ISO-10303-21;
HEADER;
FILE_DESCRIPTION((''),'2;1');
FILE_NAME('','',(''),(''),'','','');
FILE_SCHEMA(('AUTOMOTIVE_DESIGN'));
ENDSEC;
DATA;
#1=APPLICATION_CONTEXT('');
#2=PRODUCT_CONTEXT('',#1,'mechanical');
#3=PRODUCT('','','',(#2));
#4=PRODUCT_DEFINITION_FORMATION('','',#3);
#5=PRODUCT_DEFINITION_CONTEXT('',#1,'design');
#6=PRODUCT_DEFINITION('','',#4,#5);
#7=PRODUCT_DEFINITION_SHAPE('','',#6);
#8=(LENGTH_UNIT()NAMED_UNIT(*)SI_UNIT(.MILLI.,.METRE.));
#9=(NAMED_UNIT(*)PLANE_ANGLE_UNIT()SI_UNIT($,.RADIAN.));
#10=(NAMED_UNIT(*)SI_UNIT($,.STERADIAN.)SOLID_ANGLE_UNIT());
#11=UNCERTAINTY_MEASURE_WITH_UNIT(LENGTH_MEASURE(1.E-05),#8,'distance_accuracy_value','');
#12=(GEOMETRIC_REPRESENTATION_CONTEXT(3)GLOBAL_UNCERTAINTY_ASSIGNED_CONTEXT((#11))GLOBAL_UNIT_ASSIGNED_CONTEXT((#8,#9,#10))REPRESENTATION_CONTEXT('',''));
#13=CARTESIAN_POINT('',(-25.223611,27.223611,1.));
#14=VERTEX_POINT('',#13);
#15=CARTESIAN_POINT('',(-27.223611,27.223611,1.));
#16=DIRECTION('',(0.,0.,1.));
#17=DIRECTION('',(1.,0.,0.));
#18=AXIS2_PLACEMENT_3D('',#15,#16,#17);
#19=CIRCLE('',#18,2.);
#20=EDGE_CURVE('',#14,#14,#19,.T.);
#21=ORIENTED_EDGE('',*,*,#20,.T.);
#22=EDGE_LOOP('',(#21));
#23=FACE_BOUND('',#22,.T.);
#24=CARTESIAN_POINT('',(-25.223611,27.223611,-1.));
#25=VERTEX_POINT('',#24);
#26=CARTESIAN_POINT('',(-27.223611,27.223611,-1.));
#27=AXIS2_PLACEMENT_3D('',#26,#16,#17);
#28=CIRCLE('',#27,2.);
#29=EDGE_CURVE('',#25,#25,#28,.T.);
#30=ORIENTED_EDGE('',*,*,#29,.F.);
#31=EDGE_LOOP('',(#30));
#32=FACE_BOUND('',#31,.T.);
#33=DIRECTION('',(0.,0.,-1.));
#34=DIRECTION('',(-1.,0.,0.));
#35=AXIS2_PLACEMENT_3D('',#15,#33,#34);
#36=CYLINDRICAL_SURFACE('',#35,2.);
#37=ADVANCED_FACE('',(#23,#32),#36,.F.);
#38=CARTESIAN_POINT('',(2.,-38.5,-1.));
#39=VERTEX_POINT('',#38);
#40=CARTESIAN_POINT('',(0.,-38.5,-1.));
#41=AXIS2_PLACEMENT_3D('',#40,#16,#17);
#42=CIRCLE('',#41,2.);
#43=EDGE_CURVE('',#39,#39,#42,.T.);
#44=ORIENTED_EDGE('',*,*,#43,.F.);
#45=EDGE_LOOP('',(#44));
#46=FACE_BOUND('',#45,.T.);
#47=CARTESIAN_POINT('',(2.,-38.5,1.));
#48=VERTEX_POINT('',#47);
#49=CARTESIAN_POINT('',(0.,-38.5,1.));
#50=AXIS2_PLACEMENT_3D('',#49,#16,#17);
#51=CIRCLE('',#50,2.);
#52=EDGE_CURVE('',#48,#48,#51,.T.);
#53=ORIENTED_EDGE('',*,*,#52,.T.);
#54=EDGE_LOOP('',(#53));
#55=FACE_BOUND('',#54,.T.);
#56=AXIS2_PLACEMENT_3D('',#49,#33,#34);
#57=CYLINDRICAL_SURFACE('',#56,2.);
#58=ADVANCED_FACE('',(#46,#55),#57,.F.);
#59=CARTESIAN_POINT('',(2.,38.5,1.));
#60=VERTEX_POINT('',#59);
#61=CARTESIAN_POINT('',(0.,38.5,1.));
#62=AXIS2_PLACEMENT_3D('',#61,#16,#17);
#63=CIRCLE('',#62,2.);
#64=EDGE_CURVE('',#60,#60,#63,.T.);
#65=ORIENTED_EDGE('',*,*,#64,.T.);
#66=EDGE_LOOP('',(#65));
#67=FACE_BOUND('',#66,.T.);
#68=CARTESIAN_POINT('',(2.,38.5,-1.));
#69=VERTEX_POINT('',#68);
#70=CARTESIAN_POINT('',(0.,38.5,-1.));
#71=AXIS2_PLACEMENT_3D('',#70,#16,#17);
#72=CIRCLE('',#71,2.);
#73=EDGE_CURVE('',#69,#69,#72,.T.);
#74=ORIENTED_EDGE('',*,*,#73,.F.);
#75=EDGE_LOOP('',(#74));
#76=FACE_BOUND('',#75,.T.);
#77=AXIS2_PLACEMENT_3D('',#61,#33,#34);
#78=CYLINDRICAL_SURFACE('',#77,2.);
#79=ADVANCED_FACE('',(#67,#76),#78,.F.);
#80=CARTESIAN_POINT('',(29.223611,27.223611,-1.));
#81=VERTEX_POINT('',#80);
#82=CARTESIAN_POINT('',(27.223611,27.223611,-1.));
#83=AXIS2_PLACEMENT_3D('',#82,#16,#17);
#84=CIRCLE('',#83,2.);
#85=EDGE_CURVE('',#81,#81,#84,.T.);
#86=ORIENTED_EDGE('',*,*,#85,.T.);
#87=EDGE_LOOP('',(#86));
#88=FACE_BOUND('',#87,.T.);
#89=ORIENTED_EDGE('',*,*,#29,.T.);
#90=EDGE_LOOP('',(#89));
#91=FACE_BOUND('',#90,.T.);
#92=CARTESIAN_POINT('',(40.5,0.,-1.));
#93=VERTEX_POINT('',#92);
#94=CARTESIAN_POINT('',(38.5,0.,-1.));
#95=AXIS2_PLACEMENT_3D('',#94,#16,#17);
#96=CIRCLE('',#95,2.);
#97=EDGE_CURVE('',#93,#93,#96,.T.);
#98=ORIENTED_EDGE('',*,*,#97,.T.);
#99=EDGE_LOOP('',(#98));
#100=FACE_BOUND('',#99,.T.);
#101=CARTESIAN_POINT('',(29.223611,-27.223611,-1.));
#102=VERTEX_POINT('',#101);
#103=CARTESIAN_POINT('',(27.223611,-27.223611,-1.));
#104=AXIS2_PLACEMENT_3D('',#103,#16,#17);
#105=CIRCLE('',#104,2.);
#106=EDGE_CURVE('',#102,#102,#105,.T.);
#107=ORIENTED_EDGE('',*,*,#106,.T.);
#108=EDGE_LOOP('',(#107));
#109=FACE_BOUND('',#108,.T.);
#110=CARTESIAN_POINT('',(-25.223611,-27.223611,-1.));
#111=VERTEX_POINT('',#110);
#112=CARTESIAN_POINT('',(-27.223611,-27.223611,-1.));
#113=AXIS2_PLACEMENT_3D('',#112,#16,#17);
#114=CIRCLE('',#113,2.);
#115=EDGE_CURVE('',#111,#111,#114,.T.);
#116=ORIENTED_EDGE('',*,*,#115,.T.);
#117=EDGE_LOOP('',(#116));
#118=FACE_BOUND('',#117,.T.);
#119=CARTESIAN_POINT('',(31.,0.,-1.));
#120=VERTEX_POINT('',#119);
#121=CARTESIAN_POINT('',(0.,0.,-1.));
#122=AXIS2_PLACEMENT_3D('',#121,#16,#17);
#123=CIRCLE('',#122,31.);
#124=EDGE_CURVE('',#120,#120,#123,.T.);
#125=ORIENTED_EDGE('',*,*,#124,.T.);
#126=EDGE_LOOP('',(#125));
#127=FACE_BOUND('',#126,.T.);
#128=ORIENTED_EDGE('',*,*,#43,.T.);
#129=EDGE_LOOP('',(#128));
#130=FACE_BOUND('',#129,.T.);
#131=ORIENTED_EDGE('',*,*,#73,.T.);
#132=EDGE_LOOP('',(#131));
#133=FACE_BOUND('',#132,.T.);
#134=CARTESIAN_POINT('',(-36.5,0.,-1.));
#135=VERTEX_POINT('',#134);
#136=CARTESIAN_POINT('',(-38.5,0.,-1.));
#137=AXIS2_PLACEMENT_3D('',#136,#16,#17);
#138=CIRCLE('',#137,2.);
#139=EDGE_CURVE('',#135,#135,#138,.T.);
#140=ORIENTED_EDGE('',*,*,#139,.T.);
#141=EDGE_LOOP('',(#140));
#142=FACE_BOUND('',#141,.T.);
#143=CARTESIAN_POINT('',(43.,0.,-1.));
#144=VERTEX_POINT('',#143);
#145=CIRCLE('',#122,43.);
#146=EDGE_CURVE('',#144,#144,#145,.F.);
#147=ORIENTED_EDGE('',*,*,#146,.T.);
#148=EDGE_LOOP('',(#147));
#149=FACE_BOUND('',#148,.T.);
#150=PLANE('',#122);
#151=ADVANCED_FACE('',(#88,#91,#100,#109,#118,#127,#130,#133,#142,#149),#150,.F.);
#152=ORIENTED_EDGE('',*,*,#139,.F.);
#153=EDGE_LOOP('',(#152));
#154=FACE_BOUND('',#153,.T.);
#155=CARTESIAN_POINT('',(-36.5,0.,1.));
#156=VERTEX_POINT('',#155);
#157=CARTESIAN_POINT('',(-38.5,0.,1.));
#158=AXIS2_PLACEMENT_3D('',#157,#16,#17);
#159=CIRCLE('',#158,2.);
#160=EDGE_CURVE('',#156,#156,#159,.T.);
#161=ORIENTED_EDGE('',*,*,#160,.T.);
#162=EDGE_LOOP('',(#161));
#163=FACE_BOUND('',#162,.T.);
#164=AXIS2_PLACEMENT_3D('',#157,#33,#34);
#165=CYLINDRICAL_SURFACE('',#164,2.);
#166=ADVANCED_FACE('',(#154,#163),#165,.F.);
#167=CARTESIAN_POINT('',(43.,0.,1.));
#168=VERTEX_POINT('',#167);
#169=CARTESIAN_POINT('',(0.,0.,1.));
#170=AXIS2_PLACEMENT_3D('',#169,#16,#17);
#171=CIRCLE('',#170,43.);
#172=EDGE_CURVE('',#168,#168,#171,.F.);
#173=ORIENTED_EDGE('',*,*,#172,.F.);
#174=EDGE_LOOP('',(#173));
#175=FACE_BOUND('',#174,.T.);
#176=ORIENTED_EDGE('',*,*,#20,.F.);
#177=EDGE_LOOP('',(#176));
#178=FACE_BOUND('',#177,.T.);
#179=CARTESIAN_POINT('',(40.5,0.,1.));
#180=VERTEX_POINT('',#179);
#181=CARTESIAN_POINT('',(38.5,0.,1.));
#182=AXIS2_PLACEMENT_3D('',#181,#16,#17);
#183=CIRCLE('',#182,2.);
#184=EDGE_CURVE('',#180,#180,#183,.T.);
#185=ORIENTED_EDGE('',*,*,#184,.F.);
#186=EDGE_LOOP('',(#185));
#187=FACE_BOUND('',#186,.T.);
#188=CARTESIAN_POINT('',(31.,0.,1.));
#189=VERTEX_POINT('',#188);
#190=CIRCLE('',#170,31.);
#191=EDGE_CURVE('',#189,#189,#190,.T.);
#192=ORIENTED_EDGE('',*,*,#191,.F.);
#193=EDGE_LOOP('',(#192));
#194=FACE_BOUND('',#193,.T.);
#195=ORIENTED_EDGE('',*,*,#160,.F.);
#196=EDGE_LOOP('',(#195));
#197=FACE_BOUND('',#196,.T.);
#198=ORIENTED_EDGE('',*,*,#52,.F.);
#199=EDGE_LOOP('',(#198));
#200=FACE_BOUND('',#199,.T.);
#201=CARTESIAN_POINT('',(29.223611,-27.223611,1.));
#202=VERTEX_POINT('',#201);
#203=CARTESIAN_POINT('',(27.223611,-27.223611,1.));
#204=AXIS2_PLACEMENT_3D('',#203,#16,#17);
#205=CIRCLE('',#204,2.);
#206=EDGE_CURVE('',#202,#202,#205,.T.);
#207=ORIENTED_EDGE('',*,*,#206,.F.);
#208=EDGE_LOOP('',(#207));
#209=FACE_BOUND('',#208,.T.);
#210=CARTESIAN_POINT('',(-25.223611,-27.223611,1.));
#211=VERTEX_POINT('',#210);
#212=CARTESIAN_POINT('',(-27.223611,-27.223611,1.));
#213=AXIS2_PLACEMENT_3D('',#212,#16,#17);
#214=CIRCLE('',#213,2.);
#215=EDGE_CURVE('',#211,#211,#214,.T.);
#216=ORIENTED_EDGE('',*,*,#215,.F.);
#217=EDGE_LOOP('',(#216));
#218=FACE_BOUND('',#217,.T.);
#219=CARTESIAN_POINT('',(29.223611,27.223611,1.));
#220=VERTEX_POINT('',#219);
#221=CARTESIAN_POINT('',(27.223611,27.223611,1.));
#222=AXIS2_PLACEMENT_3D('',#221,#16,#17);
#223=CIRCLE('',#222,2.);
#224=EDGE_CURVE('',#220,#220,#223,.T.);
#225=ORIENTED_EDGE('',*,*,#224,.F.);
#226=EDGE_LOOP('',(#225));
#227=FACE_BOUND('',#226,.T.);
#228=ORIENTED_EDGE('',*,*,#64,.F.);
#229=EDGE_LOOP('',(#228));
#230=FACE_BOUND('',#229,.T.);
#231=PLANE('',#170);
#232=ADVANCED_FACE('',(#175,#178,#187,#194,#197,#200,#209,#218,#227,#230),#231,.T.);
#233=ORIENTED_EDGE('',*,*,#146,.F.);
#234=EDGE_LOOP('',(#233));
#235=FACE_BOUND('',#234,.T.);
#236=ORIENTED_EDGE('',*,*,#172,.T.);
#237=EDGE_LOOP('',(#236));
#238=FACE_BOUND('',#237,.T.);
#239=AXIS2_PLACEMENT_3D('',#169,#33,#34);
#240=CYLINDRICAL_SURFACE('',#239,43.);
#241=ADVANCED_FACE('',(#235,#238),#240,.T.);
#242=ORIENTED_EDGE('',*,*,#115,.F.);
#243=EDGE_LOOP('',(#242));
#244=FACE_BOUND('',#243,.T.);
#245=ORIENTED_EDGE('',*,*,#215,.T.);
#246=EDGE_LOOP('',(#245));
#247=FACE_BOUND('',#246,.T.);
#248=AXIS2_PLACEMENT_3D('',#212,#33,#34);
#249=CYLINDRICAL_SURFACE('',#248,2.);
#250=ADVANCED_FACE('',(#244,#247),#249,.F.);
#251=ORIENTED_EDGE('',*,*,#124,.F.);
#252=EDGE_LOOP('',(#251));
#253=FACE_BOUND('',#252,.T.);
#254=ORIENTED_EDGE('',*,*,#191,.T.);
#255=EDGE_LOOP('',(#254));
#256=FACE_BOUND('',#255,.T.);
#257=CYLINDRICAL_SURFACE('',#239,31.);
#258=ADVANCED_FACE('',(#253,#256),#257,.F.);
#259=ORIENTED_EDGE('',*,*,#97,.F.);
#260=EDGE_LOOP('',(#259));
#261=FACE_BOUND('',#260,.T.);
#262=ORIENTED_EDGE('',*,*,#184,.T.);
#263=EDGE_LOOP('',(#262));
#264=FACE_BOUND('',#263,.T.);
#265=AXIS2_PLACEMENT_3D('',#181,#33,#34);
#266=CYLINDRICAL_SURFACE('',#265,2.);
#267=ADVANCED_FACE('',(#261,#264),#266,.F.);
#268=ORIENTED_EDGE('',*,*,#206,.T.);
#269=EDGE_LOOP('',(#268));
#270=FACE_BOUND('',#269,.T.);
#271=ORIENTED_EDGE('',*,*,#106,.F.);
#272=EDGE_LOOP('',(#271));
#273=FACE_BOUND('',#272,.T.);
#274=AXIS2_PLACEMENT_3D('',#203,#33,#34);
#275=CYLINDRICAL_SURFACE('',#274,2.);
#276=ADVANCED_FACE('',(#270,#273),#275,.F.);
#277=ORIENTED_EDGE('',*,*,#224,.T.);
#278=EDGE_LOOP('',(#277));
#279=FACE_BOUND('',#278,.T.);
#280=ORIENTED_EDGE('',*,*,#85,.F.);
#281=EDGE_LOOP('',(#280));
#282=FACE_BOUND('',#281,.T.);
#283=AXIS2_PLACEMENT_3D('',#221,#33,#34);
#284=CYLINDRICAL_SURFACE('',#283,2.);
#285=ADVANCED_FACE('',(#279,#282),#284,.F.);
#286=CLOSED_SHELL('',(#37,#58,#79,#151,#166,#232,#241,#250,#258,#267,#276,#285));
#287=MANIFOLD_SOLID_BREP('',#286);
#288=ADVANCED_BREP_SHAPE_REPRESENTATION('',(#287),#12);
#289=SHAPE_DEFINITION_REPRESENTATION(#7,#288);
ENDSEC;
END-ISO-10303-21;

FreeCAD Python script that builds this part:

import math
import FreeCAD as App
import Part
import Sketcher
Q = App.Units.Quantity

doc = App.newDocument("Part")
body = doc.addObject("PartDesign::Body", "Body")

# Sketch on XY plane
sketch1 = body.newObject("Sketcher::SketchObject", "Sketch")
sketch1.AttachmentSupport = (doc.getObject("XY_Plane"), [""])
sketch1.MapMode = "FlatFace"
sketch1.addGeometry(Part.ArcOfCircle(Part.Circle(App.Vector(0, 0, 0), App.Vector(0, 0, 1), 43), math.radians(13.447727), math.radians(166.552273)), False)
sketch1.addGeometry(Part.ArcOfCircle(Part.Circle(App.Vector(0, 0, 0), App.Vector(0, 0, 1), 43), math.radians(166.552273), math.radians(193.447727)), False)
sketch1.addGeometry(Part.ArcOfCircle(Part.Circle(App.Vector(-0.000019, -0.000005, 0), App.Vector(0, 0, 1), 42.99998), math.radians(-166.552273), math.radians(-165.788808)), False)
sketch1.addGeometry(Part.ArcOfCircle(Part.Circle(App.Vector(0, 0, 0), App.Vector(0, 0, 1), 43), math.radians(-165.788808), math.radians(-13.509804)), False)
sketch1.addGeometry(Part.ArcOfCircle(Part.Circle(App.Vector(-0.001454, 0.000349, 0), App.Vector(0, 0, 1), 43.001496), math.radians(-13.509804), math.radians(-13.447729)), False)
sketch1.addGeometry(Part.ArcOfCircle(Part.Circle(App.Vector(0, 0, 0), App.Vector(0, 0, 1), 43), math.radians(-13.447727), math.radians(13.447727)), False)
sketch1.addGeometry(Part.Circle(App.Vector(-27.223611, -27.223611, 0), App.Vector(0, 0, 1), 2), False)
sketch1.addGeometry(Part.Circle(App.Vector(0, -38.5, 0), App.Vector(0, 0, 1), 2), False)
sketch1.addGeometry(Part.Circle(App.Vector(27.223611, -27.223611, 0), App.Vector(0, 0, 1), 2), False)
sketch1.addGeometry(Part.Circle(App.Vector(-38.5, 0, 0), App.Vector(0, 0, 1), 2), False)
sketch1.addGeometry(Part.Circle(App.Vector(-27.223611, 27.223611, 0), App.Vector(0, 0, 1), 2), False)
sketch1.addGeometry(Part.Circle(App.Vector(0, 0, 0), App.Vector(0, 0, 1), 31), False)
sketch1.addGeometry(Part.Circle(App.Vector(38.5, 0, 0), App.Vector(0, 0, 1), 2), False)
sketch1.addGeometry(Part.Circle(App.Vector(0, 38.5, 0), App.Vector(0, 0, 1), 2), False)
sketch1.addGeometry(Part.Circle(App.Vector(27.223611, 27.223611, 0), App.Vector(0, 0, 1), 2), False)
sketch1.addConstraint(Sketcher.Constraint("Coincident", 0, 2, 1, 1))
sketch1.addConstraint(Sketcher.Constraint("Coincident", 1, 2, 2, 1))
sketch1.addConstraint(Sketcher.Constraint("Coincident", 2, 2, 3, 1))
sketch1.addConstraint(Sketcher.Constraint("Coincident", 3, 2, 4, 1))
sketch1.addConstraint(Sketcher.Constraint("Coincident", 4, 2, 5, 1))
sketch1.addConstraint(Sketcher.Constraint("Coincident", 5, 2, 0, 1))
sketch1.addConstraint(Sketcher.Constraint("Coincident", 0, 3, -1, 1))
sketch1.addConstraint(Sketcher.Constraint("Coincident", 1, 3, -1, 1))
sketch1.addConstraint(Sketcher.Constraint("Coincident", 3, 3, -1, 1))
sketch1.addConstraint(Sketcher.Constraint("Coincident", 5, 3, -1, 1))
sketch1.addConstraint(Sketcher.Constraint("Coincident", 11, 3, -1, 1))
sketch1.addConstraint(Sketcher.Constraint("PointOnObject", 7, 3, -2))
sketch1.addConstraint(Sketcher.Constraint("PointOnObject", 9, 3, -1))
sketch1.addConstraint(Sketcher.Constraint("PointOnObject", 12, 3, -1))
sketch1.addConstraint(Sketcher.Constraint("PointOnObject", 13, 3, -2))
sketch1.addConstraint(Sketcher.Constraint("Diameter", 6, Q("4 mm")))
sketch1.addConstraint(Sketcher.Constraint("Diameter", 7, Q("4 mm")))
sketch1.addConstraint(Sketcher.Constraint("Diameter", 8, Q("4 mm")))
sketch1.addConstraint(Sketcher.Constraint("Diameter", 9, Q("4 mm")))
sketch1.addConstraint(Sketcher.Constraint("Diameter", 10, Q("4 mm")))
sketch1.addConstraint(Sketcher.Constraint("Diameter", 11, Q("62 mm")))
sketch1.addConstraint(Sketcher.Constraint("Diameter", 12, Q("4 mm")))
sketch1.addConstraint(Sketcher.Constraint("Diameter", 13, Q("4 mm")))
sketch1.addConstraint(Sketcher.Constraint("Diameter", 14, Q("4 mm")))
sketch1.addConstraint(Sketcher.Constraint("Radius", 0, Q("43 mm")))
sketch1.addConstraint(Sketcher.Constraint("DistanceY", -1, 1, 0, 2, Q("10 mm")))
sketch1.addConstraint(Sketcher.Constraint("DistanceY", 1, 2, -1, 1, Q("10 mm")))
sketch1.addConstraint(Sketcher.Constraint("DistanceY", 4, 2, -1, 1, Q("10 mm")))
sketch1.addConstraint(Sketcher.Constraint("DistanceY", -1, 1, 5, 2, Q("10 mm")))
sketch1.addConstraint(Sketcher.Constraint("DistanceY", 7, 3, -1, 1, Q("38.5 mm")))
sketch1.addConstraint(Sketcher.Constraint("DistanceX", 9, 3, -1, 1, Q("38.5 mm")))
sketch1.addConstraint(Sketcher.Constraint("DistanceX", -1, 1, 12, 3, Q("38.5 mm")))
sketch1.addConstraint(Sketcher.Constraint("DistanceY", -1, 1, 13, 3, Q("38.5 mm")))
sketch1.addConstraint(Sketcher.Constraint("Radius", 2, Q("42.99998 mm")))
sketch1.addConstraint(Sketcher.Constraint("Radius", 4, Q("43.001496 mm")))
sketch1.addConstraint(Sketcher.Constraint("DistanceY", -1, 1, 4, 3, Q("0.000349 mm")))
sketch1.addConstraint(Sketcher.Constraint("DistanceX", 6, 3, -1, 1, Q("27.223611 mm")))
sketch1.addConstraint(Sketcher.Constraint("DistanceY", 6, 3, -1, 1, Q("27.223611 mm")))
sketch1.addConstraint(Sketcher.Constraint("DistanceX", -1, 1, 8, 3, Q("27.223611 mm")))
sketch1.addConstraint(Sketcher.Constraint("DistanceY", 8, 3, -1, 1, Q("27.223611 mm")))
sketch1.addConstraint(Sketcher.Constraint("DistanceX", 10, 3, -1, 1, Q("27.223611 mm")))
sketch1.addConstraint(Sketcher.Constraint("DistanceY", -1, 1, 10, 3, Q("27.223611 mm")))
sketch1.addConstraint(Sketcher.Constraint("DistanceX", -1, 1, 14, 3, Q("27.223611 mm")))
sketch1.addConstraint(Sketcher.Constraint("DistanceY", -1, 1, 14, 3, Q("27.223611 mm")))
sketch1.addConstraint(Sketcher.Constraint("DistanceX", 2, 2, -1, 1, Q("41.684089 mm")))
sketch1.addConstraint(Sketcher.Constraint("DistanceX", -1, 1, 3, 2, Q("41.810188 mm")))
pad1 = body.newObject("PartDesign::Pad", "Pad")
pad1.Profile = sketch1
pad1.Length = 2
pad1.Midplane = True

doc.recompute()
